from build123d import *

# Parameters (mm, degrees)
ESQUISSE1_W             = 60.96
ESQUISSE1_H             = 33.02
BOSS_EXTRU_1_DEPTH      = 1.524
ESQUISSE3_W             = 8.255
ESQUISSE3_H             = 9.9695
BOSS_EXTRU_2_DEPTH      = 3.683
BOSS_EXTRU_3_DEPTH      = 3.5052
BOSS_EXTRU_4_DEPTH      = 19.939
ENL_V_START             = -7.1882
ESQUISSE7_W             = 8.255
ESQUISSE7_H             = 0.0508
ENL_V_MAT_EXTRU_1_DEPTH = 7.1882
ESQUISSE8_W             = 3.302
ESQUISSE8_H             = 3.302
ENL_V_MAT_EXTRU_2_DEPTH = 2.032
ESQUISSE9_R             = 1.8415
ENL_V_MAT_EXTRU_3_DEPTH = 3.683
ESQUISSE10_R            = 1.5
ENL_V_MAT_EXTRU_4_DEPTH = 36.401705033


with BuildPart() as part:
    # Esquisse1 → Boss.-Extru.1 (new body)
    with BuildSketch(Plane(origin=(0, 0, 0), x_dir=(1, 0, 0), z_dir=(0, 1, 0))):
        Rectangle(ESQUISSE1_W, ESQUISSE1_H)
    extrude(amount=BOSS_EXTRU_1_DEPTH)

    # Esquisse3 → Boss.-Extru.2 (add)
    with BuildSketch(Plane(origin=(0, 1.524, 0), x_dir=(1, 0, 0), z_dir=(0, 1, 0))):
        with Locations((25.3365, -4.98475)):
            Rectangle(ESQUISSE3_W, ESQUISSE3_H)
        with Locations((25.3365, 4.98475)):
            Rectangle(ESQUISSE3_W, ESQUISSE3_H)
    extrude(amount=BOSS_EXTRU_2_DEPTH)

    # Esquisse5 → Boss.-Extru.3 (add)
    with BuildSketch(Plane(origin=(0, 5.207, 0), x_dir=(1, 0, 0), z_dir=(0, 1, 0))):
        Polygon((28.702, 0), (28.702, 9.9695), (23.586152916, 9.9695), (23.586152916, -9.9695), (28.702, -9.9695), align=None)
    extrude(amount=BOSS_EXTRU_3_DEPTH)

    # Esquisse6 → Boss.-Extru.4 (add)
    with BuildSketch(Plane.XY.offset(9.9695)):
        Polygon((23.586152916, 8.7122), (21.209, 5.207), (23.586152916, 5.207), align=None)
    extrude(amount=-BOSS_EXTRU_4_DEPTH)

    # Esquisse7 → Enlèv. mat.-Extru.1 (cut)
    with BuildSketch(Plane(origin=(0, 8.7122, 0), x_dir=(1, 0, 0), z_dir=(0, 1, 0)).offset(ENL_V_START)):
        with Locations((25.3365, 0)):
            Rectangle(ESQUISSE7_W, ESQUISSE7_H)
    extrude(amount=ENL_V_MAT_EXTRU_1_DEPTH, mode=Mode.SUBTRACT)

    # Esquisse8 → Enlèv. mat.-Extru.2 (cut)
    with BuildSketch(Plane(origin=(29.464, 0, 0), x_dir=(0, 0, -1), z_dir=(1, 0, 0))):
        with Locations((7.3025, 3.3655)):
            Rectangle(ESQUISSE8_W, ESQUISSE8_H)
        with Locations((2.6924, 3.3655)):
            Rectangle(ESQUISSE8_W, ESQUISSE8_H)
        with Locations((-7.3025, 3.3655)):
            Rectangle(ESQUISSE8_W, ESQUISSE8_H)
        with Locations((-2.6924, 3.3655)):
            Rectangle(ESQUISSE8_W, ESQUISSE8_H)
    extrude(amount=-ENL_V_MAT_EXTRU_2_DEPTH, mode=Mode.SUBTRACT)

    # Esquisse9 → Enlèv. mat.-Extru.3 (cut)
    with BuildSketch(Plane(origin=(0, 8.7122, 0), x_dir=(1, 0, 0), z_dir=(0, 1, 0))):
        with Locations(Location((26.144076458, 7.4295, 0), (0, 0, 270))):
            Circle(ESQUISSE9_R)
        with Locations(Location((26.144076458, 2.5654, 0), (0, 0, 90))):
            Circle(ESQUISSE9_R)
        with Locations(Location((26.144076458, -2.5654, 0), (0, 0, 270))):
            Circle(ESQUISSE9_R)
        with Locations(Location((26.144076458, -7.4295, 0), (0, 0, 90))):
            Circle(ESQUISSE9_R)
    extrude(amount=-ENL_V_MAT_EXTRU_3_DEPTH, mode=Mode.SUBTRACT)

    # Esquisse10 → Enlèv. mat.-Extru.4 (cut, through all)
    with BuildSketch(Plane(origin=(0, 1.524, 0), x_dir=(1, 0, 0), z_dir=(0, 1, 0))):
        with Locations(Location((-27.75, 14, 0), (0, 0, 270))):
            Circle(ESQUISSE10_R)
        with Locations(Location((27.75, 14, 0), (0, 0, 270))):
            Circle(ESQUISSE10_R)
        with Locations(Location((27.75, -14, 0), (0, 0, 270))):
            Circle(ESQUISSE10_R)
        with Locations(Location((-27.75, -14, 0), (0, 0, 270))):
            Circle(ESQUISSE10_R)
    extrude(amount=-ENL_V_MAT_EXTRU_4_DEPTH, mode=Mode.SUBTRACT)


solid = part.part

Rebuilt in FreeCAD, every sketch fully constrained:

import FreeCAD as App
import Part
import Sketcher

V = App.Vector
Q = App.Units.Quantity

doc = App.newDocument("Part")
body = doc.addObject("PartDesign::Body", "Body")

# Sketch on XZ plane
sketch1 = doc.addObject("Sketcher::SketchObject", "Sketch")
body.addObject(sketch1)
sketch1.AttachmentSupport = (doc.XZ_Plane, [""])
sketch1.MapMode = "FlatFace"
sketch1.addGeometry(Part.LineSegment(V(-30, -17, 0), V(-30, 17, 0)), False)
sketch1.addGeometry(Part.LineSegment(V(-30, 17, 0), V(30, 17, 0)), False)
sketch1.addGeometry(Part.LineSegment(V(30, 17, 0), V(30, -17, 0)), False)
sketch1.addGeometry(Part.LineSegment(V(30, -17, 0), V(-30, -17, 0)), False)
sketch1.addConstraint(Sketcher.Constraint("Coincident", 0, 2, 1, 1))
sketch1.addConstraint(Sketcher.Constraint("Coincident", 1, 2, 2, 1))
sketch1.addConstraint(Sketcher.Constraint("Coincident", 2, 2, 3, 1))
sketch1.addConstraint(Sketcher.Constraint("Coincident", 3, 2, 0, 1))
sketch1.addConstraint(Sketcher.Constraint("Vertical", 0))
sketch1.addConstraint(Sketcher.Constraint("Horizontal", 1))
sketch1.addConstraint(Sketcher.Constraint("Vertical", 2))
sketch1.addConstraint(Sketcher.Constraint("Horizontal", 3))
sketch1.addConstraint(Sketcher.Constraint("Symmetric", 0, 2, 2, 2, -1, 1))
sketch1.addConstraint(Sketcher.Constraint("DistanceX", 1, 1, 1, 2, Q("2.4 in")))
sketch1.addConstraint(Sketcher.Constraint("DistanceY", 0, 1, 0, 2, Q("1.3 in")))
pad1 = doc.addObject("PartDesign::Pad", "Pad")
body.addObject(pad1)
pad1.Profile = sketch1
pad1.Length = Q("0.06 in")
pad1.Reversed = True

# Sketch on XZ plane
sketch2 = doc.addObject("Sketcher::SketchObject", "Sketch001")
body.addObject(sketch2)
sketch2.AttachmentSupport = (doc.XZ_Plane, [""])
sketch2.MapMode = "FlatFace"
sketch2.AttachmentOffset = App.Placement(V(0, 0, -0.06 * 25.4), App.Rotation())
sketch2.addGeometry(Part.LineSegment(V(21, 10, 0), V(29, 10, 0)), False)
sketch2.addGeometry(Part.LineSegment(V(29, 10, 0), V(29, -10, 0)), False)
sketch2.addGeometry(Part.LineSegment(V(29, -10, 0), V(21, -10, 0)), False)
sketch2.addGeometry(Part.LineSegment(V(21, -10, 0), V(21, 10, 0)), False)
sketch2.addConstraint(Sketcher.Constraint("Coincident", 0, 2, 1, 1))
sketch2.addConstraint(Sketcher.Constraint("Coincident", 1, 2, 2, 1))
sketch2.addConstraint(Sketcher.Constraint("Coincident", 2, 2, 3, 1))
sketch2.addConstraint(Sketcher.Constraint("Coincident", 3, 2, 0, 1))
sketch2.addConstraint(Sketcher.Constraint("Horizontal", 0))
sketch2.addConstraint(Sketcher.Constraint("Vertical", 1))
sketch2.addConstraint(Sketcher.Constraint("Horizontal", 2))
sketch2.addConstraint(Sketcher.Constraint("Vertical", 3))
sketch2.addConstraint(Sketcher.Constraint("DistanceX", 0, 1, 0, 2, Q("0.325 in")))
sketch2.addConstraint(Sketcher.Constraint("DistanceY", 1, 2, 1, 1, Q("0.785 in")))
sketch2.addConstraint(Sketcher.Constraint("DistanceX", -1, 1, 0, 2, Q("1.16 in")))
sketch2.addConstraint(Sketcher.Constraint("DistanceY", -1, 1, 0, 2, Q("0.3925 in")))
pad2 = doc.addObject("PartDesign::Pad", "Pad001")
body.addObject(pad2)
pad2.Profile = sketch2
pad2.Length = Q("0.145 in")
pad2.Reversed = True

# Sketch on XZ plane
sketch3 = doc.addObject("Sketcher::SketchObject", "Sketch002")
body.addObject(sketch3)
sketch3.AttachmentSupport = (doc.XZ_Plane, [""])
sketch3.MapMode = "FlatFace"
sketch3.AttachmentOffset = App.Placement(V(0, 0, -0.205 * 25.4), App.Rotation())
sketch3.addGeometry(Part.LineSegment(V(29, -10, 0), V(24, -10, 0)), False)
sketch3.addGeometry(Part.LineSegment(V(24, -10, 0), V(24, 10, 0)), False)
sketch3.addGeometry(Part.LineSegment(V(24, 10, 0), V(29, 10, 0)), False)
sketch3.addGeometry(Part.LineSegment(V(29, 10, 0), V(29, -10, 0)), False)
sketch3.addConstraint(Sketcher.Constraint("Coincident", 0, 2, 1, 1))
sketch3.addConstraint(Sketcher.Constraint("Coincident", 1, 2, 2, 1))
sketch3.addConstraint(Sketcher.Constraint("Coincident", 2, 2, 3, 1))
sketch3.addConstraint(Sketcher.Constraint("Coincident", 3, 2, 0, 1))
sketch3.addConstraint(Sketcher.Constraint("Horizontal", 0))
sketch3.addConstraint(Sketcher.Constraint("Vertical", 1))
sketch3.addConstraint(Sketcher.Constraint("Horizontal", 2))
sketch3.addConstraint(Sketcher.Constraint("Vertical", 3))
sketch3.addConstraint(Sketcher.Constraint("DistanceY", 1, 1, 1, 2, Q("0.785 in")))
sketch3.addConstraint(Sketcher.Constraint("DistanceX", -1, 1, 2, 2, Q("1.13 in")))
sketch3.addConstraint(Sketcher.Constraint("DistanceY", 0, 2, -1, 1, Q("0.3925 in")))
sketch3.addConstraint(Sketcher.Constraint("DistanceX", 0, 2, 0, 1, Q("5.115847 mm")))
pad3 = doc.addObject("PartDesign::Pad", "Pad002")
body.addObject(pad3)
pad3.Profile = sketch3
pad3.Length = Q("0.138 in")
pad3.Reversed = True

# Sketch on XY plane
sketch4 = doc.addObject("Sketcher::SketchObject", "Sketch003")
body.addObject(sketch4)
sketch4.AttachmentSupport = (doc.XY_Plane, [""])
sketch4.MapMode = "FlatFace"
sketch4.AttachmentOffset = App.Placement(V(0, 0, 0.3925 * 25.4), App.Rotation())
sketch4.addGeometry(Part.LineSegment(V(23.6, 8.7, 0), V(21.2, 5.2, 0)), False)
sketch4.addGeometry(Part.LineSegment(V(21.2, 5.2, 0), V(23.6, 5.2, 0)), False)
sketch4.addGeometry(Part.LineSegment(V(23.6, 5.2, 0), V(23.6, 8.7, 0)), False)
sketch4.addConstraint(Sketcher.Constraint("Coincident", 0, 2, 1, 1))
sketch4.addConstraint(Sketcher.Constraint("Coincident", 1, 2, 2, 1))
sketch4.addConstraint(Sketcher.Constraint("Coincident", 2, 2, 0, 1))
sketch4.addConstraint(Sketcher.Constraint("Horizontal", 1))
sketch4.addConstraint(Sketcher.Constraint("Vertical", 2))
sketch4.addConstraint(Sketcher.Constraint("DistanceY", 2, 1, 2, 2, Q("0.138 in")))
sketch4.addConstraint(Sketcher.Constraint("DistanceX", -1, 1, 0, 2, Q("0.835 in")))
sketch4.addConstraint(Sketcher.Constraint("DistanceY", -1, 1, 0, 2, Q("0.205 in")))
sketch4.addConstraint(Sketcher.Constraint("DistanceX", 1, 1, 1, 2, Q("2.377153 mm")))
pad4 = doc.addObject("PartDesign::Pad", "Pad003")
body.addObject(pad4)
pad4.Profile = sketch4
pad4.Length = Q("0.785 in")
pad4.Reversed = True

# Sketch on XZ plane
sketch5 = doc.addObject("Sketcher::SketchObject", "Sketch004")
body.addObject(sketch5)
sketch5.AttachmentSupport = (doc.XZ_Plane, [""])
sketch5.MapMode = "FlatFace"
sketch5.AttachmentOffset = App.Placement(V(0, 0, -0.06 * 25.4), App.Rotation())
sketch5.addGeometry(Part.LineSegment(V(21.21, -0.03, 0), V(21.21, 0.03, 0)), False)
sketch5.addGeometry(Part.LineSegment(V(21.21, 0.03, 0), V(29.46, 0.03, 0)), False)
sketch5.addGeometry(Part.LineSegment(V(29.46, 0.03, 0), V(29.46, -0.03, 0)), False)
sketch5.addGeometry(Part.LineSegment(V(29.46, -0.03, 0), V(21.21, -0.03, 0)), False)
sketch5.addConstraint(Sketcher.Constraint("Coincident", 0, 2, 1, 1))
sketch5.addConstraint(Sketcher.Constraint("Coincident", 1, 2, 2, 1))
sketch5.addConstraint(Sketcher.Constraint("Coincident", 2, 2, 3, 1))
sketch5.addConstraint(Sketcher.Constraint("Coincident", 3, 2, 0, 1))
sketch5.addConstraint(Sketcher.Constraint("Vertical", 0))
sketch5.addConstraint(Sketcher.Constraint("Horizontal", 1))
sketch5.addConstraint(Sketcher.Constraint("Vertical", 2))
sketch5.addConstraint(Sketcher.Constraint("Horizontal", 3))
sketch5.addConstraint(Sketcher.Constraint("DistanceX", 1, 1, 1, 2, Q("0.325 in")))
sketch5.addConstraint(Sketcher.Constraint("DistanceY", 0, 1, 0, 2, Q("0.002 in")))
sketch5.addConstraint(Sketcher.Constraint("DistanceX", -1, 1, 1, 2, Q("1.16 in")))
sketch5.addConstraint(Sketcher.Constraint("DistanceY", -1, 1, 0, 2, Q("0.001 in")))
pocket1 = doc.addObject("PartDesign::Pocket", "Pocket")
body.addObject(pocket1)
pocket1.Profile = sketch5
pocket1.Length = Q("0.283 in")

# Sketch on YZ plane
sketch6 = doc.addObject("Sketcher::SketchObject", "Sketch005")
body.addObject(sketch6)
sketch6.AttachmentSupport = (doc.YZ_Plane, [""])
sketch6.MapMode = "FlatFace"
sketch6.AttachmentOffset = App.Placement(V(0, 0, 1.16 * 25.4), App.Rotation())
sketch6.addGeometry(Part.LineSegment(V(5, -5.7, 0), V(1.7, -5.7, 0)), False)
sketch6.addGeometry(Part.LineSegment(V(1.7, -5.7, 0), V(1.7, -9, 0)), False)
sketch6.addGeometry(Part.LineSegment(V(1.7, -9, 0), V(5, -9, 0)), False)
sketch6.addGeometry(Part.LineSegment(V(5, -9, 0), V(5, -5.7, 0)), False)
sketch6.addGeometry(Part.LineSegment(V(5, -1, 0), V(1.7, -1, 0)), False)
sketch6.addGeometry(Part.LineSegment(V(1.7, -1, 0), V(1.7, -4.3, 0)), False)
sketch6.addGeometry(Part.LineSegment(V(1.7, -4.3, 0), V(5, -4.3, 0)), False)
sketch6.addGeometry(Part.LineSegment(V(5, -4.3, 0), V(5, -1, 0)), False)
sketch6.addGeometry(Part.LineSegment(V(5, 9, 0), V(1.7, 9, 0)), False)
sketch6.addGeometry(Part.LineSegment(V(1.7, 9, 0), V(1.7, 5.7, 0)), False)
sketch6.addGeometry(Part.LineSegment(V(1.7, 5.7, 0), V(5, 5.7, 0)), False)
sketch6.addGeometry(Part.LineSegment(V(5, 5.7, 0), V(5, 9, 0)), False)
sketch6.addGeometry(Part.LineSegment(V(5, 4.3, 0), V(1.7, 4.3, 0)), False)
sketch6.addGeometry(Part.LineSegment(V(1.7, 4.3, 0), V(1.7, 1, 0)), False)
sketch6.addGeometry(Part.LineSegment(V(1.7, 1, 0), V(5, 1, 0)), False)
sketch6.addGeometry(Part.LineSegment(V(5, 1, 0), V(5, 4.3, 0)), False)
sketch6.addConstraint(Sketcher.Constraint("Coincident", 0, 2, 1, 1))
sketch6.addConstraint(Sketcher.Constraint("Coincident", 1, 2, 2, 1))
sketch6.addConstraint(Sketcher.Constraint("Coincident", 2, 2, 3, 1))
sketch6.addConstraint(Sketcher.Constraint("Coincident", 3, 2, 0, 1))
sketch6.addConstraint(Sketcher.Constraint("Coincident", 4, 2, 5, 1))
sketch6.addConstraint(Sketcher.Constraint("Coincident", 5, 2, 6, 1))
sketch6.addConstraint(Sketcher.Constraint("Coincident", 6, 2, 7, 1))
sketch6.addConstraint(Sketcher.Constraint("Coincident", 7, 2, 4, 1))
sketch6.addConstraint(Sketcher.Constraint("Coincident", 8, 2, 9, 1))
sketch6.addConstraint(Sketcher.Constraint("Coincident", 9, 2, 10, 1))
sketch6.addConstraint(Sketcher.Constraint("Coincident", 10, 2, 11, 1))
sketch6.addConstraint(Sketcher.Constraint("Coincident", 11, 2, 8, 1))
sketch6.addConstraint(Sketcher.Constraint("Coincident", 12, 2, 13, 1))
sketch6.addConstraint(Sketcher.Constraint("Coincident", 13, 2, 14, 1))
sketch6.addConstraint(Sketcher.Constraint("Coincident", 14, 2, 15, 1))
sketch6.addConstraint(Sketcher.Constraint("Coincident", 15, 2, 12, 1))
sketch6.addConstraint(Sketcher.Constraint("Horizontal", 0))
sketch6.addConstraint(Sketcher.Constraint("Vertical", 1))
sketch6.addConstraint(Sketcher.Constraint("Horizontal", 2))
sketch6.addConstraint(Sketcher.Constraint("Vertical", 3))
sketch6.addConstraint(Sketcher.Constraint("Horizontal", 4))
sketch6.addConstraint(Sketcher.Constraint("Vertical", 5))
sketch6.addConstraint(Sketcher.Constraint("Horizontal", 6))
sketch6.addConstraint(Sketcher.Constraint("Vertical", 7))
sketch6.addConstraint(Sketcher.Constraint("Horizontal", 8))
sketch6.addConstraint(Sketcher.Constraint("Vertical", 9))
sketch6.addConstraint(Sketcher.Constraint("Horizontal", 10))
sketch6.addConstraint(Sketcher.Constraint("Vertical", 11))
sketch6.addConstraint(Sketcher.Constraint("Horizontal", 12))
sketch6.addConstraint(Sketcher.Constraint("Vertical", 13))
sketch6.addConstraint(Sketcher.Constraint("Horizontal", 14))
sketch6.addConstraint(Sketcher.Constraint("Vertical", 15))
sketch6.addConstraint(Sketcher.Constraint("Symmetric", 1, 2, 8, 2, -1))
sketch6.addConstraint(Sketcher.Constraint("Symmetric", 3, 2, 10, 2, -1))
sketch6.addConstraint(Sketcher.Constraint("Symmetric", 5, 2, 12, 2, -1))
sketch6.addConstraint(Sketcher.Constraint("Symmetric", 7, 2, 14, 2, -1))
sketch6.addConstraint(Sketcher.Constraint("Vertical", 1, 2, 4, 2))
sketch6.addConstraint(Sketcher.Constraint("Vertical", 3, 2, 6, 2))
sketch6.addConstraint(Sketcher.Constraint("Equal", 14, 1))
sketch6.addConstraint(Sketcher.Constraint("Equal", 3, 5))
sketch6.addConstraint(Sketcher.Constraint("DistanceX", 0, 2, 0, 1, Q("0.13 in")))
sketch6.addConstraint(Sketcher.Constraint("DistanceY", 4, 2, -1, 1, Q("0.041 in")))
sketch6.addConstraint(Sketcher.Constraint("DistanceY", 0, 2, 8, 2, Q("0.575 in")))
sketch6.addConstraint(Sketcher.Constraint("DistanceX", -1, 1, 0, 2, Q("0.0675 in")))
pocket2 = doc.addObject("PartDesign::Pocket", "Pocket001")
body.addObject(pocket2)
pocket2.Profile = sketch6
pocket2.Length = Q("0.08 in")

# Sketch on XZ plane
sketch7 = doc.addObject("Sketcher::SketchObject", "Sketch006")
body.addObject(sketch7)
sketch7.AttachmentSupport = (doc.XZ_Plane, [""])
sketch7.MapMode = "FlatFace"
sketch7.AttachmentOffset = App.Placement(V(0, 0, -0.343 * 25.4), App.Rotation())
sketch7.addGeometry(Part.Circle(V(26.1, -7.4, 0), V(0, 0, 1), 1.8), False)
sketch7.addGeometry(Part.Circle(V(26.1, -2.6, 0), V(0, 0, 1), 1.8), False)
sketch7.addGeometry(Part.Circle(V(26.1, 2.6, 0), V(0, 0, 1), 1.8), False)
sketch7.addGeometry(Part.Circle(V(26.1, 7.4, 0), V(0, 0, 1), 1.8), False)
sketch7.addConstraint(Sketcher.Constraint("Equal", 0, 1))
sketch7.addConstraint(Sketcher.Constraint("Equal", 1, 2))
sketch7.addConstraint(Sketcher.Constraint("Equal", 2, 3))
sketch7.addConstraint(Sketcher.Constraint("Symmetric", 1, 3, 2, 3, -1))
sketch7.addConstraint(Sketcher.Constraint("Symmetric", 0, 3, 3, 3, -1))
sketch7.addConstraint(Sketcher.Constraint("Vertical", 0, 3, 1, 3))
sketch7.addConstraint(Sketcher.Constraint("Diameter", 0, Q("0.145 in")))
sketch7.addConstraint(Sketcher.Constraint("DistanceY", 1, 3, -1, 1, Q("0.101 in")))
sketch7.addConstraint(Sketcher.Constraint("DistanceY", 0, 3, 3, 3, Q("0.585 in")))
sketch7.addConstraint(Sketcher.Constraint("DistanceX", -1, 1, 0, 3, Q("26.144076 mm")))
pocket3 = doc.addObject("PartDesign::Pocket", "Pocket002")
body.addObject(pocket3)
pocket3.Profile = sketch7
pocket3.Length = Q("0.145 in")
pocket3.Reversed = True

# Sketch on XZ plane
sketch8 = doc.addObject("Sketcher::SketchObject", "Sketch007")
body.addObject(sketch8)
sketch8.AttachmentSupport = (doc.XZ_Plane, [""])
sketch8.MapMode = "FlatFace"
sketch8.AttachmentOffset = App.Placement(V(0, 0, -0.06 * 25.4), App.Rotation())
sketch8.addGeometry(Part.Circle(V(-27.8, -14, 0), V(0, 0, 1), 1.5), False)
sketch8.addGeometry(Part.Circle(V(27.8, -14, 0), V(0, 0, 1), 1.5), False)
sketch8.addGeometry(Part.Circle(V(27.8, 14, 0), V(0, 0, 1), 1.5), False)
sketch8.addGeometry(Part.Circle(V(-27.8, 14, 0), V(0, 0, 1), 1.5), False)
sketch8.addConstraint(Sketcher.Constraint("Equal", 0, 1))
sketch8.addConstraint(Sketcher.Constraint("Equal", 1, 2))
sketch8.addConstraint(Sketcher.Constraint("Equal", 2, 3))
sketch8.addConstraint(Sketcher.Constraint("Symmetric", 0, 3, 2, 3, -1, 1))
sketch8.addConstraint(Sketcher.Constraint("Symmetric", 1, 3, 3, 3, -1, 1))
sketch8.addConstraint(Sketcher.Constraint("Symmetric", 0, 3, 1, 3, -2))
sketch8.addConstraint(Sketcher.Constraint("Diameter", 0, Q("3 mm")))
sketch8.addConstraint(Sketcher.Constraint("DistanceX", 0, 3, -1, 1, Q("27.75 mm")))
sketch8.addConstraint(Sketcher.Constraint("DistanceY", 0, 3, -1, 1, Q("14 mm")))
pocket4 = doc.addObject("PartDesign::Pocket", "Pocket003")
body.addObject(pocket4)
pocket4.Profile = sketch8
pocket4.Type = "ThroughAll"
pocket4.Reversed = True

doc.recompute()
